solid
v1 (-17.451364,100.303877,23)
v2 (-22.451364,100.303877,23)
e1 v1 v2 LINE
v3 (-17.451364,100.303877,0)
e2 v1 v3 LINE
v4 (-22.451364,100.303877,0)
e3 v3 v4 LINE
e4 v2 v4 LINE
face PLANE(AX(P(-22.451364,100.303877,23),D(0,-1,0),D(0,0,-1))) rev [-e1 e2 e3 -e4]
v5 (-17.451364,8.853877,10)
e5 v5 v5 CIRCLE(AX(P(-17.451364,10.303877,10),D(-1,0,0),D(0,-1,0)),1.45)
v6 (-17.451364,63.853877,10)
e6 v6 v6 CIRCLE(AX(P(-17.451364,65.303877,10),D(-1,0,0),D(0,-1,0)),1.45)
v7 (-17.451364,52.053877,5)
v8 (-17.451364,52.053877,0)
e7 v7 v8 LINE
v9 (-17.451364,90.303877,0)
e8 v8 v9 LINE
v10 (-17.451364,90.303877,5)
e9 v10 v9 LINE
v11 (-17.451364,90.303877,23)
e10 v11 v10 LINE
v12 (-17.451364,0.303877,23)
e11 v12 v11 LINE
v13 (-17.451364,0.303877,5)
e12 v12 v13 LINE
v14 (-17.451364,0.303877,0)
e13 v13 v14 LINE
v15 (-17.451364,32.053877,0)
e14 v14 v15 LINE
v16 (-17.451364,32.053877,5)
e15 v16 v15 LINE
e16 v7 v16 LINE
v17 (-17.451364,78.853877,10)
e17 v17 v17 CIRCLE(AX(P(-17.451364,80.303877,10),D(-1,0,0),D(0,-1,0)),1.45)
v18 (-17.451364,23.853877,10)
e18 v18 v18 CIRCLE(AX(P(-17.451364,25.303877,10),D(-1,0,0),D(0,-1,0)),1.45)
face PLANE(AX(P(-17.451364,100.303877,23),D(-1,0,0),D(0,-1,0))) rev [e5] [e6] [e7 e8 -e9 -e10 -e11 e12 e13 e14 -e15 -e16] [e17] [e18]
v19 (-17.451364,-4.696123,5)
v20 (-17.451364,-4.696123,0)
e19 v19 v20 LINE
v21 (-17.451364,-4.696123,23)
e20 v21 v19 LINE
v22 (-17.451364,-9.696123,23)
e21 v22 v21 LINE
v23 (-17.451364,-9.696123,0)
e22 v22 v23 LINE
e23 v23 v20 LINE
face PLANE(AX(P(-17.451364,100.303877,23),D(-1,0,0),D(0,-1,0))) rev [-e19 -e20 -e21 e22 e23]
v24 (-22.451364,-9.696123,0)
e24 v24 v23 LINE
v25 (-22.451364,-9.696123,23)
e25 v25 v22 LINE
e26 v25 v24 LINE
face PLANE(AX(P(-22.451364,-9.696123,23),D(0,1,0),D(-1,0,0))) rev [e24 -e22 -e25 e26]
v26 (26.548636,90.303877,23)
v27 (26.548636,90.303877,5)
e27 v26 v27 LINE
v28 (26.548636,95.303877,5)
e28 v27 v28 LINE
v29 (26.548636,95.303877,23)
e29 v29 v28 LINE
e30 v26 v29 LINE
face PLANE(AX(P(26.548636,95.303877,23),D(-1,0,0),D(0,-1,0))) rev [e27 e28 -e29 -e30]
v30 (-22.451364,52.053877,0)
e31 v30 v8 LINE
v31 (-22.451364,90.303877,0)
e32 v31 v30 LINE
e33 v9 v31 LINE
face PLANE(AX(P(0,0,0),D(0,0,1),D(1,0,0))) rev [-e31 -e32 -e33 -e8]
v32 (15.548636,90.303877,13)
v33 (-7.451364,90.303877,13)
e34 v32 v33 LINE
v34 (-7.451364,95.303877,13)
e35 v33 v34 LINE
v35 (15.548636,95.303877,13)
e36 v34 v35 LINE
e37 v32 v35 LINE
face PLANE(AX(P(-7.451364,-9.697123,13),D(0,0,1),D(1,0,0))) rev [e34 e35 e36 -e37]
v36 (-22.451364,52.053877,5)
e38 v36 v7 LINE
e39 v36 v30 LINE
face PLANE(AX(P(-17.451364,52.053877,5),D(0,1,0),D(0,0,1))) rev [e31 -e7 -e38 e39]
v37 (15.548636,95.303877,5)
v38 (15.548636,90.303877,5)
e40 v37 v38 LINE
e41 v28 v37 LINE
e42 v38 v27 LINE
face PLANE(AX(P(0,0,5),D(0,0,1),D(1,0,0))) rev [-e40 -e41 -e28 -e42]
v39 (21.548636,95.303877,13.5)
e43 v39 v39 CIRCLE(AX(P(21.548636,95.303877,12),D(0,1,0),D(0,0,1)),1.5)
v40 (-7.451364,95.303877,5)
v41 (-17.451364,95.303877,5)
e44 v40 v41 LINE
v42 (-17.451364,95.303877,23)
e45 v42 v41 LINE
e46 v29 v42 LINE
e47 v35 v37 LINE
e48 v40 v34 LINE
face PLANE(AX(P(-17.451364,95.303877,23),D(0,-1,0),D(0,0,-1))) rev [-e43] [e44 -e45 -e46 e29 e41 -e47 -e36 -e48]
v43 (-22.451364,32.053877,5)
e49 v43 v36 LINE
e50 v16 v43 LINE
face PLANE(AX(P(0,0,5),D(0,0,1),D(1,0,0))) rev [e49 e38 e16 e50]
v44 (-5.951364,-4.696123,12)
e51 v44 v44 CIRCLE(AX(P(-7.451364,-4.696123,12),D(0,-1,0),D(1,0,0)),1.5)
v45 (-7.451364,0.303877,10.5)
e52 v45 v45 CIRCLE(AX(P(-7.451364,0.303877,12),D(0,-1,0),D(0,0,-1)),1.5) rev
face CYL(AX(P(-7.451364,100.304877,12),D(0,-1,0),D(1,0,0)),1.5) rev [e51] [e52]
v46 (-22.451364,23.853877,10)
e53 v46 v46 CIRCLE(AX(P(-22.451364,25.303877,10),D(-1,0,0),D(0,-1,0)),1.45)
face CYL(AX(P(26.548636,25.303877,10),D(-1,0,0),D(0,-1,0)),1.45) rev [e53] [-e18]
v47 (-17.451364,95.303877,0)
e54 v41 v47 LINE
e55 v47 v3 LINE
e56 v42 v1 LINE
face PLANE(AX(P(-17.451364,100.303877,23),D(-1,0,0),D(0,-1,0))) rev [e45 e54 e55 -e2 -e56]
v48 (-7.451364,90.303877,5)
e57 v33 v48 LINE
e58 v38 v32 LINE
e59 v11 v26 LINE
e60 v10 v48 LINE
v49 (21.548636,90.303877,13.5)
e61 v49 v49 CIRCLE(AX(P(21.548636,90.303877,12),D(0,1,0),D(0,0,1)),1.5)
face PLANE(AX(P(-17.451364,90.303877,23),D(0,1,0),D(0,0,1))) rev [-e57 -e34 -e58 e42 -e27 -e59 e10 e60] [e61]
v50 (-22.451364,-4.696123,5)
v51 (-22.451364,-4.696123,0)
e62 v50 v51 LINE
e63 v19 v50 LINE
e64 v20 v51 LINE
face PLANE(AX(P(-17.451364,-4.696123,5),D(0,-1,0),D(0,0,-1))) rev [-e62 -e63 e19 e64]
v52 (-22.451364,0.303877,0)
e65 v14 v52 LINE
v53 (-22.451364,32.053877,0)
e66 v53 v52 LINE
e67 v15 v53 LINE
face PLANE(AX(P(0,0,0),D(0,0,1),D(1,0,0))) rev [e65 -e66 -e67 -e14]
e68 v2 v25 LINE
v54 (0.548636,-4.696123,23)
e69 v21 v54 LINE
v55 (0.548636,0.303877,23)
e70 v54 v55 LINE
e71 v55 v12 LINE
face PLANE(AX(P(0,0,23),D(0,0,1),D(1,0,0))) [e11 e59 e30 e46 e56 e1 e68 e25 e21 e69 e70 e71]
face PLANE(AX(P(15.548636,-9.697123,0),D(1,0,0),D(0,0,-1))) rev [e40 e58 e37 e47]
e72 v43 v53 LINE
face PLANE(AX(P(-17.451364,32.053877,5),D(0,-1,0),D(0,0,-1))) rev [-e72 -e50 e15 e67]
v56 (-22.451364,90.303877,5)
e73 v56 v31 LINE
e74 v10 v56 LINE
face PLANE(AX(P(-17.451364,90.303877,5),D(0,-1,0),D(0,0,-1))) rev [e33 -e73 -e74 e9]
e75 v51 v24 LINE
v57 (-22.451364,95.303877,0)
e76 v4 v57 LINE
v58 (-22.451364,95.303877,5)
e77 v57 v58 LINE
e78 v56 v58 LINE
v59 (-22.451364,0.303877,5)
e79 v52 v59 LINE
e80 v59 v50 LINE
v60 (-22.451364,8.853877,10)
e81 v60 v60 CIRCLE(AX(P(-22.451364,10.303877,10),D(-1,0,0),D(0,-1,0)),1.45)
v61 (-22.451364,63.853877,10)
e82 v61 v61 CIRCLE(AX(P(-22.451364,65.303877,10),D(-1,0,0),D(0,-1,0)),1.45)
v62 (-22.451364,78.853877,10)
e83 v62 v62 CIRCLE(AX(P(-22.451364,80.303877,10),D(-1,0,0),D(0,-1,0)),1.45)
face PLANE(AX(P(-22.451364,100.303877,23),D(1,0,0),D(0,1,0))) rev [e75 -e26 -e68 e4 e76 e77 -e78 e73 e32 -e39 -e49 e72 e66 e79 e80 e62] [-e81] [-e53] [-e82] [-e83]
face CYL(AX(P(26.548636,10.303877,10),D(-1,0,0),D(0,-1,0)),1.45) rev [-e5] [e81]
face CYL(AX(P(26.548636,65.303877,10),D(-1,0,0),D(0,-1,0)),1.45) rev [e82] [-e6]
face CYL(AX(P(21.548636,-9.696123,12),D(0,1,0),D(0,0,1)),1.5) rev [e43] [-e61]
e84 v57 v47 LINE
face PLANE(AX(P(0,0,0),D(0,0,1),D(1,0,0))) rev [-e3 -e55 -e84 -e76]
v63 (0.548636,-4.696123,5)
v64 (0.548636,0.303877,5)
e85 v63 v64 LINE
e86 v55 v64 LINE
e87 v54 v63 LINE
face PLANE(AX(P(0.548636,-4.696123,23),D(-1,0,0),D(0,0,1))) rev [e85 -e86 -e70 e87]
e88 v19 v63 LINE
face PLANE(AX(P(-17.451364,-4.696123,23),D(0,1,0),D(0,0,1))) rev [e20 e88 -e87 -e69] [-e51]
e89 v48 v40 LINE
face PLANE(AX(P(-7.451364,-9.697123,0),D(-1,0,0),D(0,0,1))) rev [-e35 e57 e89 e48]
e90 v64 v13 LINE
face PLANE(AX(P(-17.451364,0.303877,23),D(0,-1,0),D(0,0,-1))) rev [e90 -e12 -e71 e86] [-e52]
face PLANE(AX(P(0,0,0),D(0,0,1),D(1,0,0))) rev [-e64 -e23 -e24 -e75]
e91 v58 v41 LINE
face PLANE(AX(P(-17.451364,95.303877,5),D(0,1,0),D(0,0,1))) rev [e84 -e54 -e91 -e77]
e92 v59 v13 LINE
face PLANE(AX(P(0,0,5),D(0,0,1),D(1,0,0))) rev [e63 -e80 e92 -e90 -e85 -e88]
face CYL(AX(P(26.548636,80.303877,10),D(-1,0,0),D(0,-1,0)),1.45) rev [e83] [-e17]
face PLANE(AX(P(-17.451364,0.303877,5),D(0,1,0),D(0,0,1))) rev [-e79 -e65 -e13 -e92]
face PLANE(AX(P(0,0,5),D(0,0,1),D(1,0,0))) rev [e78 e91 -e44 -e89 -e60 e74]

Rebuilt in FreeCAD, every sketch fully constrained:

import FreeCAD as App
import Part
import Sketcher

doc = App.newDocument("Part")
body = doc.addObject("PartDesign::Body", "Body")

# Sketch on XY plane
sketch1 = body.newObject("Sketcher::SketchObject", "Sketch")
sketch1.AttachmentSupport = (doc.getObject("XY_Plane"), [""])
sketch1.MapMode = "FlatFace"
sketch1.addGeometry([
    Part.LineSegment(App.Vector(-17, -10, 0), App.Vector(-17, -5, 0)),  # 0
    Part.LineSegment(App.Vector(-17, -5, 0), App.Vector(1, -5, 0)),  # 1
    Part.LineSegment(App.Vector(1, -5, 0), App.Vector(1, 0, 0)),  # 2
    Part.LineSegment(App.Vector(1, 0, 0), App.Vector(-17, 0, 0)),  # 3
    Part.LineSegment(App.Vector(-17, 0, 0), App.Vector(-17, 90, 0)),  # 4
    Part.LineSegment(App.Vector(-17, 90, 0), App.Vector(27, 90, 0)),  # 5
    Part.LineSegment(App.Vector(27, 90, 0), App.Vector(27, 95, 0)),  # 6
    Part.LineSegment(App.Vector(27, 95, 0), App.Vector(-17, 95, 0)),  # 7
    Part.LineSegment(App.Vector(-17, 95, 0), App.Vector(-17, 100, 0)),  # 8
    Part.LineSegment(App.Vector(-17, 100, 0), App.Vector(-22, 100, 0)),  # 9
    Part.LineSegment(App.Vector(-22, 100, 0), App.Vector(-22, -10, 0)),  # 10
    Part.LineSegment(App.Vector(-22, -10, 0), App.Vector(-17, -10, 0)),  # 11
], False)
sketch1.addConstraint([
    Sketcher.Constraint("Coincident", 0, 2, 1, 1),
    Sketcher.Constraint("Coincident", 1, 2, 2, 1),
    Sketcher.Constraint("Coincident", 2, 2, 3, 1),
    Sketcher.Constraint("Coincident", 3, 2, 4, 1),
    Sketcher.Constraint("Coincident", 4, 2, 5, 1),
    Sketcher.Constraint("Coincident", 5, 2, 6, 1),
    Sketcher.Constraint("Coincident", 6, 2, 7, 1),
    Sketcher.Constraint("Coincident", 7, 2, 8, 1),
    Sketcher.Constraint("Coincident", 8, 2, 9, 1),
    Sketcher.Constraint("Coincident", 9, 2, 10, 1),
    Sketcher.Constraint("Coincident", 10, 2, 11, 1),
    Sketcher.Constraint("Coincident", 11, 2, 0, 1),
    Sketcher.Constraint("Vertical", 0),
    Sketcher.Constraint("Horizontal", 1),
    Sketcher.Constraint("Vertical", 2),
    Sketcher.Constraint("Horizontal", 3),
    Sketcher.Constraint("Vertical", 4),
    Sketcher.Constraint("Horizontal", 5),
    Sketcher.Constraint("Vertical", 6),
    Sketcher.Constraint("Horizontal", 7),
    Sketcher.Constraint("Vertical", 8),
    Sketcher.Constraint("Horizontal", 9),
    Sketcher.Constraint("Vertical", 10),
    Sketcher.Constraint("Horizontal", 11),
    Sketcher.Constraint("Vertical", 0, 2, 3, 2),
    Sketcher.Constraint("Vertical", 4, 2, 7, 2),
    Sketcher.Constraint("Equal", 11, 0),
    Sketcher.Constraint("Equal", 0, 2),
    Sketcher.Constraint("Equal", 2, 6),
    Sketcher.Constraint("Equal", 6, 8),
    Sketcher.Constraint("DistanceX", 1, 1, 1, 2, 18.0),
    Sketcher.Constraint("DistanceX", 5, 1, 5, 2, 44.0),
    Sketcher.Constraint("DistanceX", 9, 2, 9, 1, 5.0),
    Sketcher.Constraint("DistanceY", 4, 1, 4, 2, 90.0),
    Sketcher.Constraint("DistanceX", 0, 2, -1, 1, 17.451364),
    Sketcher.Constraint("DistanceY", 0, 2, -1, 1, 4.696123),
])
pad1 = body.newObject("PartDesign::Pad", "Pad")
pad1.Profile = sketch1
pad1.Length = 23

# Sketch on XY plane
sketch2 = body.newObject("Sketcher::SketchObject", "Sketch001")
sketch2.AttachmentSupport = (doc.getObject("XY_Plane"), [""])
sketch2.MapMode = "FlatFace"
sketch2.addGeometry([
    Part.LineSegment(App.Vector(-17, 52, 0), App.Vector(-17, 32, 0)),
    Part.LineSegment(App.Vector(-17, 32, 0), App.Vector(-22, 32, 0)),
    Part.LineSegment(App.Vector(-22, 32, 0), App.Vector(-22, 52, 0)),
    Part.LineSegment(App.Vector(-22, 52, 0), App.Vector(-17, 52, 0)),
], False)
sketch2.addConstraint([
    Sketcher.Constraint("Coincident", 0, 2, 1, 1),
    Sketcher.Constraint("Coincident", 1, 2, 2, 1),
    Sketcher.Constraint("Coincident", 2, 2, 3, 1),
    Sketcher.Constraint("Coincident", 3, 2, 0, 1),
    Sketcher.Constraint("Vertical", 0),
    Sketcher.Constraint("Horizontal", 1),
    Sketcher.Constraint("Vertical", 2),
    Sketcher.Constraint("Horizontal", 3),
    Sketcher.Constraint("DistanceX", 1, 2, 1, 1, 5.0),
    Sketcher.Constraint("DistanceY", 0, 2, 0, 1, 20.0),
    Sketcher.Constraint("DistanceX", 0, 2, -1, 1, 17.451364),
    Sketcher.Constraint("DistanceY", -1, 1, 0, 2, 32.053877),
])
pocket1 = body.newObject("PartDesign::Pocket", "Pocket")
pocket1.Profile = sketch2
pocket1.Length = 5
pocket1.Reversed = True

# Sketch on XZ plane
sketch3 = body.newObject("Sketcher::SketchObject", "Sketch002")
sketch3.AttachmentSupport = (doc.getObject("XZ_Plane"), [""])
sketch3.MapMode = "FlatFace"
sketch3.AttachmentOffset = App.Placement(App.Vector(0, 0, -95.303877), App.Rotation())
sketch3.addGeometry([
    Part.LineSegment(App.Vector(-7, 0, 0), App.Vector(-7, 13, 0)),
    Part.LineSegment(App.Vector(-7, 13, 0), App.Vector(16, 13, 0)),
    Part.LineSegment(App.Vector(16, 13, 0), App.Vector(16, 0, 0)),
    Part.LineSegment(App.Vector(16, 0, 0), App.Vector(-7, 0, 0)),
], False)
sketch3.addConstraint([
    Sketcher.Constraint("Coincident", 0, 2, 1, 1),
    Sketcher.Constraint("Coincident", 1, 2, 2, 1),
    Sketcher.Constraint("Coincident", 2, 2, 3, 1),
    Sketcher.Constraint("Coincident", 3, 2, 0, 1),
    Sketcher.Constraint("Vertical", 0),
    Sketcher.Constraint("Horizontal", 1),
    Sketcher.Constraint("Vertical", 2),
    Sketcher.Constraint("Horizontal", 3),
    Sketcher.Constraint("PointOnObject", 2, 2, -1),
    Sketcher.Constraint("DistanceX", 1, 1, 1, 2, 23.0),
    Sketcher.Constraint("DistanceY", 0, 1, 0, 2, 13.0),
    Sketcher.Constraint("DistanceX", 0, 2, -1, 1, 7.451364),
])
pocket2 = body.newObject("PartDesign::Pocket", "Pocket001")
pocket2.Profile = sketch3
pocket2.Type = "UpToFirst"
pocket2.Reversed = True

# Sketch on XZ plane
sketch4 = body.newObject("Sketcher::SketchObject", "Sketch003")
sketch4.AttachmentSupport = (doc.getObject("XZ_Plane"), [""])
sketch4.MapMode = "FlatFace"
sketch4.AttachmentOffset = App.Placement(App.Vector(0, 0, 4.696123), App.Rotation())
sketch4.addGeometry(Part.Circle(App.Vector(-7.5, 12, 0), App.Vector(0, 0, 1), 1.5), False)
sketch4.addConstraint([
    Sketcher.Constraint("Diameter", 0, 3.0),
    Sketcher.Constraint("DistanceY", -1, 1, 0, 3, 12.0),
    Sketcher.Constraint("DistanceX", 0, 3, -1, 1, 7.451364),
])
pocket3 = body.newObject("PartDesign::Pocket", "Pocket002")
pocket3.Profile = sketch4
pocket3.Type = "UpToFirst"

# Sketch on XZ plane
sketch5 = body.newObject("Sketcher::SketchObject", "Sketch004")
sketch5.AttachmentSupport = (doc.getObject("XZ_Plane"), [""])
sketch5.MapMode = "FlatFace"
sketch5.AttachmentOffset = App.Placement(App.Vector(0, 0, -95.303877), App.Rotation())
sketch5.addGeometry(Part.Circle(App.Vector(21.5, 12, 0), App.Vector(0, 0, 1), 1.5), False)
sketch5.addConstraint([
    Sketcher.Constraint("Diameter", 0, 3.0),
    Sketcher.Constraint("DistanceY", -1, 1, 0, 3, 12.0),
    Sketcher.Constraint("DistanceX", -1, 1, 0, 3, 21.548636),
])
pocket4 = body.newObject("PartDesign::Pocket", "Pocket003")
pocket4.Profile = sketch5
pocket4.Type = "ThroughAll"
pocket4.Reversed = True

# Sketch on XY plane
sketch6 = body.newObject("Sketcher::SketchObject", "Sketch005")
sketch6.AttachmentSupport = (doc.getObject("XY_Plane"), [""])
sketch6.MapMode = "FlatFace"
sketch6.addGeometry([
    Part.LineSegment(App.Vector(59, 100, 0), App.Vector(59, -13, 0)),
    Part.LineSegment(App.Vector(59, -13, 0), App.Vector(-17, -13, 0)),
    Part.LineSegment(App.Vector(-17, -13, 0), App.Vector(-17, 100, 0)),
    Part.LineSegment(App.Vector(-17, 100, 0), App.Vector(59, 100, 0)),
], False)
sketch6.addConstraint([
    Sketcher.Constraint("Coincident", 0, 2, 1, 1),
    Sketcher.Constraint("Coincident", 1, 2, 2, 1),
    Sketcher.Constraint("Coincident", 2, 2, 3, 1),
    Sketcher.Constraint("Coincident", 3, 2, 0, 1),
    Sketcher.Constraint("Vertical", 0),
    Sketcher.Constraint("Horizontal", 1),
    Sketcher.Constraint("Vertical", 2),
    Sketcher.Constraint("Horizontal", 3),
    Sketcher.Constraint("DistanceX", 1, 2, 1, 1, 76.143559),
    Sketcher.Constraint("DistanceY", 0, 2, 0, 1, 113.64971),
    Sketcher.Constraint("DistanceX", -1, 1, 0, 2, 58.692195),
    Sketcher.Constraint("DistanceY", 0, 2, -1, 1, 13.345833),
])
pocket5 = body.newObject("PartDesign::Pocket", "Pocket004")
pocket5.Profile = sketch6
pocket5.Length = 5
pocket5.Reversed = True

# Sketch on XY plane
sketch7 = body.newObject("Sketcher::SketchObject", "Sketch006")
sketch7.AttachmentSupport = (doc.getObject("XY_Plane"), [""])
sketch7.MapMode = "FlatFace"
sketch7.addGeometry([
    Part.LineSegment(App.Vector(-17, 95, 0), App.Vector(-17, 90, 0)),  # 0
    Part.LineSegment(App.Vector(-17, 90, 0), App.Vector(-45, 90, 0)),  # 1
    Part.LineSegment(App.Vector(-45, 90, 0), App.Vector(-45, 95, 0)),  # 2
    Part.LineSegment(App.Vector(-45, 95, 0), App.Vector(-17, 95, 0)),  # 3
    Part.LineSegment(App.Vector(-17, 0, 0), App.Vector(-17, -5, 0)),  # 4
    Part.LineSegment(App.Vector(-17, -5, 0), App.Vector(-58, -5, 0)),  # 5
    Part.LineSegment(App.Vector(-58, -5, 0), App.Vector(-58, 0, 0)),  # 6
    Part.LineSegment(App.Vector(-58, 0, 0), App.Vector(-17, 0, 0)),  # 7
], False)
sketch7.addConstraint([
    Sketcher.Constraint("Coincident", 0, 2, 1, 1),
    Sketcher.Constraint("Coincident", 1, 2, 2, 1),
    Sketcher.Constraint("Coincident", 2, 2, 3, 1),
    Sketcher.Constraint("Coincident", 3, 2, 0, 1),
    Sketcher.Constraint("Coincident", 4, 2, 5, 1),
    Sketcher.Constraint("Coincident", 5, 2, 6, 1),
    Sketcher.Constraint("Coincident", 6, 2, 7, 1),
    Sketcher.Constraint("Coincident", 7, 2, 4, 1),
    Sketcher.Constraint("Vertical", 0),
    Sketcher.Constraint("Horizontal", 1),
    Sketcher.Constraint("Vertical", 2),
    Sketcher.Constraint("Horizontal", 3),
    Sketcher.Constraint("Vertical", 4),
    Sketcher.Constraint("Horizontal", 5),
    Sketcher.Constraint("Vertical", 6),
    Sketcher.Constraint("Horizontal", 7),
    Sketcher.Constraint("Vertical", 3, 2, 4, 2),
    Sketcher.Constraint("Equal", 2, 4),
    Sketcher.Constraint("DistanceY", 0, 2, 0, 1, 5.0),
    Sketcher.Constraint("DistanceY", 4, 2, 0, 2, 95.0),
    Sketcher.Constraint("DistanceX", 1, 2, 1, 1, 28.016264),
    Sketcher.Constraint("DistanceX", 5, 2, 5, 1, 40.160077),
    Sketcher.Constraint("DistanceX", 5, 2, -1, 1, 57.611441),
    Sketcher.Constraint("DistanceY", -1, 1, 0, 2, 90.303877),
])
pocket6 = body.newObject("PartDesign::Pocket", "Pocket005")
pocket6.Profile = sketch7
pocket6.Length = 5
pocket6.Reversed = True

# Sketch on YZ plane
sketch8 = body.newObject("Sketcher::SketchObject", "Sketch007")
sketch8.AttachmentSupport = (doc.getObject("YZ_Plane"), [""])
sketch8.MapMode = "FlatFace"
sketch8.AttachmentOffset = App.Placement(App.Vector(0, 0, -22.451364), App.Rotation())
sketch8.addGeometry([
    Part.Circle(App.Vector(80.3, 10, 0), App.Vector(0, 0, 1), 1.4),
    Part.Circle(App.Vector(10.3, 10, 0), App.Vector(0, 0, 1), 1.4),
    Part.Circle(App.Vector(65.3, 10, 0), App.Vector(0, 0, 1), 1.4),
    Part.Circle(App.Vector(25.3, 10, 0), App.Vector(0, 0, 1), 1.4),
], False)
sketch8.addConstraint([
    Sketcher.Constraint("Equal", 0, 1),
    Sketcher.Constraint("Equal", 1, 2),
    Sketcher.Constraint("Equal", 2, 3),
    Sketcher.Constraint("Horizontal", 0, 3, 1, 3),
    Sketcher.Constraint("Horizontal", 1, 3, 2, 3),
    Sketcher.Constraint("Horizontal", 2, 3, 3, 3),
    Sketcher.Constraint("Diameter", 0, 2.9),
    Sketcher.Constraint("DistanceY", -1, 1, 0, 3, 10.0),
    Sketcher.Constraint("DistanceX", 1, 3, 0, 3, 70.0),
    Sketcher.Constraint("DistanceX", 2, 3, 0, 3, 15.0),
    Sketcher.Constraint("DistanceX", 1, 3, 3, 3, 15.0),
    Sketcher.Constraint("DistanceX", -1, 1, 0, 3, 80.303877),
])
pocket7 = body.newObject("PartDesign::Pocket", "Pocket006")
pocket7.Profile = sketch8
pocket7.Type = "ThroughAll"
pocket7.Reversed = True

doc.recompute()
